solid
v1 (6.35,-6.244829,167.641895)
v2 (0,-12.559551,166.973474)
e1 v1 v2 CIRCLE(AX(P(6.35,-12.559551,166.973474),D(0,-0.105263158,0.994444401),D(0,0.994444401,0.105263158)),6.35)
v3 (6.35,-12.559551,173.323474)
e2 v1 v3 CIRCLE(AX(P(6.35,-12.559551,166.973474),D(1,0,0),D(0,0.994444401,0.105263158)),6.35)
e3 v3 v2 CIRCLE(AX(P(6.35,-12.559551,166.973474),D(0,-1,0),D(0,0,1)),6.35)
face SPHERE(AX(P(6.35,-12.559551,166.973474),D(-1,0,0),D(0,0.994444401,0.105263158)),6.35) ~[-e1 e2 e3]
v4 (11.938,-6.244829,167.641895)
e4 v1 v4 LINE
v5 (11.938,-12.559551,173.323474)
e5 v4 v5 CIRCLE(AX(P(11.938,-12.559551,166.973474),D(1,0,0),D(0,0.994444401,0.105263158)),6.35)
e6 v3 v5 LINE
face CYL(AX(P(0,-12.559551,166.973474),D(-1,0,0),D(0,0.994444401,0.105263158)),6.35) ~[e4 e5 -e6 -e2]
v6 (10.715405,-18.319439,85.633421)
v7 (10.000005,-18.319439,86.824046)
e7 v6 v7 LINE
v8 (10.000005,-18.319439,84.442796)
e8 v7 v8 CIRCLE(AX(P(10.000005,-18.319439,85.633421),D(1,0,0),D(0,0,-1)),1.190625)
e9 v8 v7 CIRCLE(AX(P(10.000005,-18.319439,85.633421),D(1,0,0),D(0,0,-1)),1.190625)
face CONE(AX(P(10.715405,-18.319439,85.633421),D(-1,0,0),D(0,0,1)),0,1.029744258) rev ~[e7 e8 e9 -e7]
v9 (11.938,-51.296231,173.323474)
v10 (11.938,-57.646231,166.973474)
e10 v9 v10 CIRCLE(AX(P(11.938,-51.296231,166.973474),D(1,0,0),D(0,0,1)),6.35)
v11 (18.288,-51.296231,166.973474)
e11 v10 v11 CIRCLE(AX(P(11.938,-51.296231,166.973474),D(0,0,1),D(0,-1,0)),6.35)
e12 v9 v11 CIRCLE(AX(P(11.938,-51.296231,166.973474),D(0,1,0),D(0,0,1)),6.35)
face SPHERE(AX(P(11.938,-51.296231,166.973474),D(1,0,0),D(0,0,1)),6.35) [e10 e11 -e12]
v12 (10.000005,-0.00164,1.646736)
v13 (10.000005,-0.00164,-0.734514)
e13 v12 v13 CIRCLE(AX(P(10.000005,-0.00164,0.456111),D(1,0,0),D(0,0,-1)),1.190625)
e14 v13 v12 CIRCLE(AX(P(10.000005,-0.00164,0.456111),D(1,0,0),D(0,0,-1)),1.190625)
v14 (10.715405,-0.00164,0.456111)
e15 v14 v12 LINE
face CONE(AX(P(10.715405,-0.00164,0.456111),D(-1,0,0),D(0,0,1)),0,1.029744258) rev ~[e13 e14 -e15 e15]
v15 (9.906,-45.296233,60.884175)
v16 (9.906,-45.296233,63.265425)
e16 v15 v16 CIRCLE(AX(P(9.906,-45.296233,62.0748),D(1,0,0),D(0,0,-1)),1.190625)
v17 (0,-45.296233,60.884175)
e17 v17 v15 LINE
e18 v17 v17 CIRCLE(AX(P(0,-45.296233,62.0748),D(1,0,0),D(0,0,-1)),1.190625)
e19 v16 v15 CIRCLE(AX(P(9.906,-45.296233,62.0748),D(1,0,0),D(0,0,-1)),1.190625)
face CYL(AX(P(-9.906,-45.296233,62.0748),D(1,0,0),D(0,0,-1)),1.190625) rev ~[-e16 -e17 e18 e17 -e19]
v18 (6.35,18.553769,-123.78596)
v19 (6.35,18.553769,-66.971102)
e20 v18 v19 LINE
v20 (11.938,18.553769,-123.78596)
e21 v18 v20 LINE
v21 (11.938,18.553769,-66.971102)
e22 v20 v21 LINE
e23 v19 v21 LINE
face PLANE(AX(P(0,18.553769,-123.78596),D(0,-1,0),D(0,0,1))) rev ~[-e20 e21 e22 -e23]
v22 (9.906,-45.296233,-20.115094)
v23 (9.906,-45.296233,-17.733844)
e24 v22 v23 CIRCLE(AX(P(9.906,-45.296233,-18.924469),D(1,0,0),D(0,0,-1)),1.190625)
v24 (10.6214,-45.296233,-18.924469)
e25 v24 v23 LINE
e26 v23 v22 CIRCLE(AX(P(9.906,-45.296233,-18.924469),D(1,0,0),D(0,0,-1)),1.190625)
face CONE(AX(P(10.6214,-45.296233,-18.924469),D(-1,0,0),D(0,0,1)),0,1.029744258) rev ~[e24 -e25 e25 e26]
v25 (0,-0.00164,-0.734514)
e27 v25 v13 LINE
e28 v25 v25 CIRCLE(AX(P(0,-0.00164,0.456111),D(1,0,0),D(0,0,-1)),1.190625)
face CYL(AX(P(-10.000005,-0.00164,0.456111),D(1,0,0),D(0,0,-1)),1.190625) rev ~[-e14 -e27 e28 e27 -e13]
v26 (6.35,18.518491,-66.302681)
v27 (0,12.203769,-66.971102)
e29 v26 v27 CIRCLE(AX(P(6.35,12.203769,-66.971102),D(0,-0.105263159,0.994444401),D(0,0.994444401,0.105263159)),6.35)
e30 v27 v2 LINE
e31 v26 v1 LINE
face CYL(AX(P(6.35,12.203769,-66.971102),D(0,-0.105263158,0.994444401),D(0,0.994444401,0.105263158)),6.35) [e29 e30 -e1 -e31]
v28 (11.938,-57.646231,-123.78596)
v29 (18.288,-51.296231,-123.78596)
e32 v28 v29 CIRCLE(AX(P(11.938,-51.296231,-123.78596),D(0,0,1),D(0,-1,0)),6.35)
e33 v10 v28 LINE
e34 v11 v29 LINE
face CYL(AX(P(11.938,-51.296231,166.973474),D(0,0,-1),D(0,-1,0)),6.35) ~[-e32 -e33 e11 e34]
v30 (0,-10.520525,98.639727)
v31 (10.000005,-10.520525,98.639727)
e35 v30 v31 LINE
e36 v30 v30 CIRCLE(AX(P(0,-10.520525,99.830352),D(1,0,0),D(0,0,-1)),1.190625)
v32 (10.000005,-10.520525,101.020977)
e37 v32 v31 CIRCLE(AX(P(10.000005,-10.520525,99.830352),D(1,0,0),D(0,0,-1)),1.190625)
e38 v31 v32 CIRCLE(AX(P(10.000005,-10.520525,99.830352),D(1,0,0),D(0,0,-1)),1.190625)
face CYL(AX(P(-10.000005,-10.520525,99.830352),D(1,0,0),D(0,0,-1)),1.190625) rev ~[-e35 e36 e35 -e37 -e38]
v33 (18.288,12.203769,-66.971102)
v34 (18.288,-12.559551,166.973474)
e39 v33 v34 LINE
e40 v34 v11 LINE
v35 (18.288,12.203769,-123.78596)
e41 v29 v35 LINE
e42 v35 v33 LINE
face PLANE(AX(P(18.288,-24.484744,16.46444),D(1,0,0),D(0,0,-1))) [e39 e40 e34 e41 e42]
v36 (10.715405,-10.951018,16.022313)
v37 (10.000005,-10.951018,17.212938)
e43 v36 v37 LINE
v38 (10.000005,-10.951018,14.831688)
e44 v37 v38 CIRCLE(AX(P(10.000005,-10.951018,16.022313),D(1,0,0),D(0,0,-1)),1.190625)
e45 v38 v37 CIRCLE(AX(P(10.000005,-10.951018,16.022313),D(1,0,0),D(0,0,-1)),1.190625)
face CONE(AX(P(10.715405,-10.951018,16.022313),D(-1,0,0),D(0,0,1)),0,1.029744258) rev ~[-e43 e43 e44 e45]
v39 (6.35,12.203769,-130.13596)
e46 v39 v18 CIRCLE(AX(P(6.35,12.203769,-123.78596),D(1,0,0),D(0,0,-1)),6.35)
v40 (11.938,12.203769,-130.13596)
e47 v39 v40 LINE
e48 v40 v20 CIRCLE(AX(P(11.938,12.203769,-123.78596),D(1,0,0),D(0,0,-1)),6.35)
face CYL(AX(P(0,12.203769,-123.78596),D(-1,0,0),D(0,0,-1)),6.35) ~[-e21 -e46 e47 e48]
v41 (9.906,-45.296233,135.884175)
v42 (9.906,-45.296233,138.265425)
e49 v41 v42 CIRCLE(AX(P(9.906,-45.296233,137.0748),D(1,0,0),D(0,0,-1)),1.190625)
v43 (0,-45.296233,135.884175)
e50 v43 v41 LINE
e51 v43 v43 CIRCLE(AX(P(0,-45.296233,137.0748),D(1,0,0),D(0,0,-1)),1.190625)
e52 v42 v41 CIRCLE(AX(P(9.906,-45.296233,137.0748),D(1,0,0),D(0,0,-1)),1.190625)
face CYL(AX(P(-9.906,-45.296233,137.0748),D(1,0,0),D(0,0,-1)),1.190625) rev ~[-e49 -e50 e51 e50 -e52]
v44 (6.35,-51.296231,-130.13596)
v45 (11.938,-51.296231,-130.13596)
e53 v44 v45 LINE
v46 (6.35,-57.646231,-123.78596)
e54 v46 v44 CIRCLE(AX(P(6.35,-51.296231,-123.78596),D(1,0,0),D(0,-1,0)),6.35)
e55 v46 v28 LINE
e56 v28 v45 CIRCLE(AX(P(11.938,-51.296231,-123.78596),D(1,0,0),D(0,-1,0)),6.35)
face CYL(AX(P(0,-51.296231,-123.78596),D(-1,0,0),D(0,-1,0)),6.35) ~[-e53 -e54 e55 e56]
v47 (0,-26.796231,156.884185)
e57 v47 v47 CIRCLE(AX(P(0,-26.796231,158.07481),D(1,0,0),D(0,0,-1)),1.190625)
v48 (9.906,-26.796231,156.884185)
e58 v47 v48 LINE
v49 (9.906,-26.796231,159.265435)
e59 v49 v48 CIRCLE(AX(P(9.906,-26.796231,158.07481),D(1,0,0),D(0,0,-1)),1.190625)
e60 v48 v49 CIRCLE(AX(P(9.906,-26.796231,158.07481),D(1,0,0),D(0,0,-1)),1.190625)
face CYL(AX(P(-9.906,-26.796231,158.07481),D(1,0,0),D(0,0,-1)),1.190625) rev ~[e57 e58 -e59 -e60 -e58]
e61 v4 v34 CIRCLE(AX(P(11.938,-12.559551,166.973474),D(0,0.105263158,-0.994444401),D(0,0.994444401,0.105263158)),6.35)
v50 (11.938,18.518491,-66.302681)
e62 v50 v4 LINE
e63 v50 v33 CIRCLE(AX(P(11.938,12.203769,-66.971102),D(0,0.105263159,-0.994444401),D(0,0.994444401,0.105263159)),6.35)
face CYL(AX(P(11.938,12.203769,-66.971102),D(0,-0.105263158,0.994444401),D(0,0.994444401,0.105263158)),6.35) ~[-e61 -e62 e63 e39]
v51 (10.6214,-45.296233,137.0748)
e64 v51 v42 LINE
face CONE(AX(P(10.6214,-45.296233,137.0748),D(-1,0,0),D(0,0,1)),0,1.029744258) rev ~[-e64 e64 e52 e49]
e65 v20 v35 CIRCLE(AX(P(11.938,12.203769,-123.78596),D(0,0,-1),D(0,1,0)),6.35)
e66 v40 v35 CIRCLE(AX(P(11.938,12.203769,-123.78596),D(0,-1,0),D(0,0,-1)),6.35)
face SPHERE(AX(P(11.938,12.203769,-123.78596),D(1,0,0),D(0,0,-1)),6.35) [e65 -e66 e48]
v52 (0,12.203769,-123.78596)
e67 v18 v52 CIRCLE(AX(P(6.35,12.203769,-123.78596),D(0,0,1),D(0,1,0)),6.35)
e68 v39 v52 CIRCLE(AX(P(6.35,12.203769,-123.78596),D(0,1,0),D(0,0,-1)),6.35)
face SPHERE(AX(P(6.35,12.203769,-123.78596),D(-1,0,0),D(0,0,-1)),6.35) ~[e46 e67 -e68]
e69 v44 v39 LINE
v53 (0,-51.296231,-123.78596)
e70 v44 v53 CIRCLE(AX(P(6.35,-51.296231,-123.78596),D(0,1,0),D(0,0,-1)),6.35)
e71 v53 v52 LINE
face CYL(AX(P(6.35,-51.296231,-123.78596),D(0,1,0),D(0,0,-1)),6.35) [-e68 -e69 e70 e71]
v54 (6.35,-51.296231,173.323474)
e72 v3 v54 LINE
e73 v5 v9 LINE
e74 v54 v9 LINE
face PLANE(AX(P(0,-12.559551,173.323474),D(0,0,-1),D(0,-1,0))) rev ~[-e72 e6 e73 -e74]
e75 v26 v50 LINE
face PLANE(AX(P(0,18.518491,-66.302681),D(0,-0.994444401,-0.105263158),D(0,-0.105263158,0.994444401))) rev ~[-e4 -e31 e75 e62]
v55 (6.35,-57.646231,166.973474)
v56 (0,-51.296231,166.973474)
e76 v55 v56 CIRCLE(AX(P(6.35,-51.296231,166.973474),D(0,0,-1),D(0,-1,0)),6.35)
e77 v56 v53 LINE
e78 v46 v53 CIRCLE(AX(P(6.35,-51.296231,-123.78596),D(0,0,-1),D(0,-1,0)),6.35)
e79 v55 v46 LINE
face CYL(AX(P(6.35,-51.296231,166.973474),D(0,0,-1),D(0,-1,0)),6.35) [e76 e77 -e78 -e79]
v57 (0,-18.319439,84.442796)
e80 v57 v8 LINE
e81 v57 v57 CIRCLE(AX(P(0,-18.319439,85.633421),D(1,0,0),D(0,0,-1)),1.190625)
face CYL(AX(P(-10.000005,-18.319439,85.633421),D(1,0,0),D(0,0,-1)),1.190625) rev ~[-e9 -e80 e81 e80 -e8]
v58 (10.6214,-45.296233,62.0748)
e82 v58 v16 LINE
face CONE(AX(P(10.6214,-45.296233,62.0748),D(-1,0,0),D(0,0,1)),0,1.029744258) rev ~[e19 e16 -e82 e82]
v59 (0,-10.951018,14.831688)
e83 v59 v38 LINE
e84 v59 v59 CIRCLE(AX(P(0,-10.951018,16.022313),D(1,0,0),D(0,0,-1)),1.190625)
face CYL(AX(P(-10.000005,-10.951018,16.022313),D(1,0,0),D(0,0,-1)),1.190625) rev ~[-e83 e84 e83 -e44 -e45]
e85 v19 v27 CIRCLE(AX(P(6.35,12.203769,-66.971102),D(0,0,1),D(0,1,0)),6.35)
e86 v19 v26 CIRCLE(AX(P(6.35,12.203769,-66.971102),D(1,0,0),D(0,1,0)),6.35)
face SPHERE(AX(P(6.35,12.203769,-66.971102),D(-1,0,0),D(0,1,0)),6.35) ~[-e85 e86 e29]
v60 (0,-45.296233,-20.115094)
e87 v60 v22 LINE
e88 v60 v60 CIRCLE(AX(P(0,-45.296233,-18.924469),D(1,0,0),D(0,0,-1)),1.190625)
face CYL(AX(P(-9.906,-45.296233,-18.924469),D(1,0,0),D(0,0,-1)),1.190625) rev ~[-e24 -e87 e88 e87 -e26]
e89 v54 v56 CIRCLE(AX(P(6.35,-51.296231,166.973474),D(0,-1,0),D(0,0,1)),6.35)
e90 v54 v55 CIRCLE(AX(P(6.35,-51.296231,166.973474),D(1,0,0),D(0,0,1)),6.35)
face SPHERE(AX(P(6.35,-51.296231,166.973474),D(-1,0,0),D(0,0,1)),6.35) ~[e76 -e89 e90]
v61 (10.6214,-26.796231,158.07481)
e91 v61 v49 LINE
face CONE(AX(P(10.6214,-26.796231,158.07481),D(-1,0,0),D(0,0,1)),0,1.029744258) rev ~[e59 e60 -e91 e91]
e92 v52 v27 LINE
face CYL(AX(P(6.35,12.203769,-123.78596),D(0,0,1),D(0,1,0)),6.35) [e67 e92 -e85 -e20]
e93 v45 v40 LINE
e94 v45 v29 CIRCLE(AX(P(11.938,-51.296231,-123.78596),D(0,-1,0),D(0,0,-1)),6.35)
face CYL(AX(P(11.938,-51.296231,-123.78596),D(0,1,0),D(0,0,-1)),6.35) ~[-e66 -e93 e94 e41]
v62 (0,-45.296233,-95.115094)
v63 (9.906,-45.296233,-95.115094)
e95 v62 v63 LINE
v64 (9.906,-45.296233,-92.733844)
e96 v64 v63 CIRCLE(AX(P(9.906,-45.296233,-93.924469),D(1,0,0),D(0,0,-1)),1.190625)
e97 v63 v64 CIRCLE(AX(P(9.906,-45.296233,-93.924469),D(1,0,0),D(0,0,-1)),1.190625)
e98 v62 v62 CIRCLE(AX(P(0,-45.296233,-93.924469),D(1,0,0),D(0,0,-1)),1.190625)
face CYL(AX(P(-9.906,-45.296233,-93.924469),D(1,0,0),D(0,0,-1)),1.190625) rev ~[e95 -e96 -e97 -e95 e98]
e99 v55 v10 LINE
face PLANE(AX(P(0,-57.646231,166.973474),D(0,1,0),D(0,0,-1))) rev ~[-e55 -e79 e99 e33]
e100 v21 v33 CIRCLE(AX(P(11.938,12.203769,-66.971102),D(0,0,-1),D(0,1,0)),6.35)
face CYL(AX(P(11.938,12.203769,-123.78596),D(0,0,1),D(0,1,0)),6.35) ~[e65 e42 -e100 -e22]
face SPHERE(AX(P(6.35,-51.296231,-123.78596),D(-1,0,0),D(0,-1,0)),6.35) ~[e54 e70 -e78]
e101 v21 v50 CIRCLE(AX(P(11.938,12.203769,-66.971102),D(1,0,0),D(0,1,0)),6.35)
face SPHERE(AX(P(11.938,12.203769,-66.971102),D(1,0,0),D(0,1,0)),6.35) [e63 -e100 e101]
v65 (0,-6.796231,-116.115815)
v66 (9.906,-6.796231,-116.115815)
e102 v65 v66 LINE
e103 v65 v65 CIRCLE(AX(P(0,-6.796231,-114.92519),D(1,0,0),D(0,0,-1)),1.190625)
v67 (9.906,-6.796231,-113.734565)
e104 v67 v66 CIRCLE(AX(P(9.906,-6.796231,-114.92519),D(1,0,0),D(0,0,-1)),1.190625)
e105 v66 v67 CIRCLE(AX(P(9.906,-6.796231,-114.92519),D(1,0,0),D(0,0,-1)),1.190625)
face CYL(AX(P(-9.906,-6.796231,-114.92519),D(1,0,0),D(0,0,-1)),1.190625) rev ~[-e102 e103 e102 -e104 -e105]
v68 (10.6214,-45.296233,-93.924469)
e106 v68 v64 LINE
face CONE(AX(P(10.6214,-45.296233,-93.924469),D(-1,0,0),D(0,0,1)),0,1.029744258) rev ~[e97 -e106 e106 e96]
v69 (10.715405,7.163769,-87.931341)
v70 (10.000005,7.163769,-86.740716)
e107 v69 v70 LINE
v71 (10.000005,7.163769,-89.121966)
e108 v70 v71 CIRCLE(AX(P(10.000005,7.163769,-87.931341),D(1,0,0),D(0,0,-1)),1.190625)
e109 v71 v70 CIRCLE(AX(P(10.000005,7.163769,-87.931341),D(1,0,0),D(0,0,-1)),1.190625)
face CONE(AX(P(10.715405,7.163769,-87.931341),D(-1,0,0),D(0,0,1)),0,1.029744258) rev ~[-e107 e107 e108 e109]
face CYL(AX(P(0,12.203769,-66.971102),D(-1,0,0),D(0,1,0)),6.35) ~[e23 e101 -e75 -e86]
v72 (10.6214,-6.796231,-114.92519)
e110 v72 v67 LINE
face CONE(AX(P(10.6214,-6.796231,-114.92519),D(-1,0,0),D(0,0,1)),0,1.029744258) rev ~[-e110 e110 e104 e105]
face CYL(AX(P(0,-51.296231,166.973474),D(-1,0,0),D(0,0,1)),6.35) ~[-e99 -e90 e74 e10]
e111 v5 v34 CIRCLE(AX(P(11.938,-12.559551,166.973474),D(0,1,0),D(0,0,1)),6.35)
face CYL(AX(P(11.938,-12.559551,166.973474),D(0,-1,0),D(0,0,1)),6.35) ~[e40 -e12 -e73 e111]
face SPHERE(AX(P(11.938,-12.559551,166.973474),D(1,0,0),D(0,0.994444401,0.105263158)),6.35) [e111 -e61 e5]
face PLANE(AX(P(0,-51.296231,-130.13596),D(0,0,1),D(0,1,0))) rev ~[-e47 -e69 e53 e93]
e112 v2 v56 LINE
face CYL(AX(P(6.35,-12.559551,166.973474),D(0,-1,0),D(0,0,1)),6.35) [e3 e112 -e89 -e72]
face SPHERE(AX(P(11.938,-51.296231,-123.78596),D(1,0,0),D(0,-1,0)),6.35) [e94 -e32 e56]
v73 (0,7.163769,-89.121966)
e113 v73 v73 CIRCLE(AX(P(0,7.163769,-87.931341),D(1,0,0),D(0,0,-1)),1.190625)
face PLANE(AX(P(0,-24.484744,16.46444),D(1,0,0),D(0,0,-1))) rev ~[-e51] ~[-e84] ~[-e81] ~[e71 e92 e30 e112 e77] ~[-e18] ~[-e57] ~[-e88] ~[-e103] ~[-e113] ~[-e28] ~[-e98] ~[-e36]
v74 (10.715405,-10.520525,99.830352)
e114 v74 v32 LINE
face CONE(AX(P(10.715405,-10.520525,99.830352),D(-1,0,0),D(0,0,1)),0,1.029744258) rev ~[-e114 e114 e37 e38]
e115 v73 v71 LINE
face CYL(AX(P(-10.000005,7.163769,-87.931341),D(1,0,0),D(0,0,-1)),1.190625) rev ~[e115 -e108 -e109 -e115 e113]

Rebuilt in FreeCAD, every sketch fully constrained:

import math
import FreeCAD as App
import Part
import Sketcher
Q = App.Units.Quantity


def edges_at(feature, points):
    """Names of the edges that pass closest to the given points."""
    edges = feature.Shape.Edges
    near = lambda p: min(range(len(edges)), key=lambda i: edges[i].distToShape(Part.Vertex(*p))[0])
    return sorted({f"Edge{near(p) + 1}" for p in points})

doc = App.newDocument("Part")
body = doc.addObject("PartDesign::Body", "Body")

# Sketch on YZ plane
sketch1 = body.newObject("Sketcher::SketchObject", "Sketch")
sketch1.AttachmentSupport = (doc.getObject("YZ_Plane"), [""])
sketch1.MapMode = "FlatFace"
sketch1.addGeometry([
    Part.LineSegment(App.Vector(-57.6, 167, 0), App.Vector(-57.6, -123.8, 0)),  # 0
    Part.ArcOfCircle(Part.Circle(App.Vector(-51.3, -123.8, 0), App.Vector(0, 0, 1), 6.3), math.radians(180), math.radians(270)),  # 1
    Part.LineSegment(App.Vector(-51.3, -130.1, 0), App.Vector(12.2, -130.1, 0)),  # 2
    Part.ArcOfCircle(Part.Circle(App.Vector(12.2, -123.8, 0), App.Vector(0, 0, 1), 6.4), math.radians(-90), math.radians(0)),  # 3
    Part.LineSegment(App.Vector(18.6, -123.8, 0), App.Vector(18.6, -67, 0)),  # 4
    Part.ArcOfCircle(Part.Circle(App.Vector(12.2, -67, 0), App.Vector(0, 0, 1), 6.3), math.radians(0), math.radians(6.04)),  # 5
    Part.LineSegment(App.Vector(18.5, -66.3, 0), App.Vector(-6.2, 167.6, 0)),  # 6
    Part.ArcOfCircle(Part.Circle(App.Vector(-12.6, 167, 0), App.Vector(0, 0, 1), 6.3), math.radians(6), math.radians(90)),  # 7
    Part.LineSegment(App.Vector(-12.6, 173.3, 0), App.Vector(-51.3, 173.3, 0)),  # 8
    Part.ArcOfCircle(Part.Circle(App.Vector(-51.3, 167, 0), App.Vector(0, 0, 1), 6.3), math.radians(90), math.radians(180)),  # 9
], False)
sketch1.addConstraint([
    Sketcher.Constraint("Tangent", 0, 2, 1, 1),
    Sketcher.Constraint("Tangent", 1, 2, 2, 1),
    Sketcher.Constraint("Tangent", 2, 2, 3, 1),
    Sketcher.Constraint("Tangent", 3, 2, 4, 1),
    Sketcher.Constraint("Tangent", 4, 2, 5, 1),
    Sketcher.Constraint("Tangent", 5, 2, 6, 1),
    Sketcher.Constraint("Tangent", 6, 2, 7, 1),
    Sketcher.Constraint("Tangent", 7, 2, 8, 1),
    Sketcher.Constraint("Tangent", 8, 2, 9, 1),
    Sketcher.Constraint("Tangent", 9, 2, 0, 1),
    Sketcher.Constraint("Vertical", 0),
    Sketcher.Constraint("Horizontal", 2),
    Sketcher.Constraint("Vertical", 4),
    Sketcher.Constraint("Horizontal", 8),
    Sketcher.Constraint("Equal", 1, 3),
    Sketcher.Constraint("Equal", 3, 5),
    Sketcher.Constraint("Equal", 5, 7),
    Sketcher.Constraint("Equal", 7, 9),
    Sketcher.Constraint("Radius", 1, Q("0.25 in")),
    Sketcher.Constraint("DistanceX", 2, 1, 2, 2, Q("2.5 in")),
    Sketcher.Constraint("DistanceX", 8, 2, 8, 1, Q("38.73668 mm")),
    Sketcher.Constraint("DistanceY", 4, 1, 4, 2, Q("56.814859 mm")),
    Sketcher.Constraint("DistanceY", 5, 3, -1, 1, Q("66.971102 mm")),
    Sketcher.Constraint("Distance", 6, Q("235.251539 mm")),
    Sketcher.Constraint("DistanceX", 1, 3, -1, 1, Q("51.296231 mm")),
])
pad1 = body.newObject("PartDesign::Pad", "Pad")
pad1.Profile = sketch1
pad1.Length = Q("0.72 in")
doc.recompute()

fillet = body.newObject("PartDesign::Fillet", "Fillet")
fillet.Base = (pad1, edges_at(pad1, [
    (18.288, -8.312, 171.694),
    (0, -19.546, -130.136),
    (0, -55.786, -128.276),
    (0, -57.646, 21.594),
    (0, -55.786, 171.464),
    (0, -31.928, 173.323),
    (0, -8.312, 171.694),
    (0, 6.137, 50.67),
    (0, 18.545, -66.636),
    (18.288, -31.928, 173.323),
    (18.288, -55.786, 171.464),
    (18.288, -57.646, 21.594),
    (18.288, -55.786, -128.276),
    (18.288, -19.546, -130.136),
    (18.288, 16.694, -128.276),
    (18.288, 18.554, -95.379),
    (18.288, 18.545, -66.636),
    (18.288, 6.137, 50.67),
    (0, 18.554, -95.379),
    (0, 16.694, -128.276),
]))
fillet.Radius = Q("0.25 in")

# Sketch on YZ plane
sketch2 = body.newObject("Sketcher::SketchObject", "Sketch001")
sketch2.AttachmentSupport = (doc.getObject("YZ_Plane"), [""])
sketch2.MapMode = "FlatFace"
sketch2.addGeometry([
    Part.Circle(App.Vector(-11, 16, 0), App.Vector(0, 0, 1), 1.2),
    Part.Circle(App.Vector(-18.3, 85.6, 0), App.Vector(0, 0, 1), 1.2),
], False)
sketch2.addConstraint([
    Sketcher.Constraint("Equal", 0, 1),
    Sketcher.Constraint("Diameter", 0, Q("0.09375 in")),
    Sketcher.Constraint("DistanceX", 0, 3, -1, 1, Q("10.951018 mm")),
    Sketcher.Constraint("DistanceX", 1, 3, -1, 1, Q("18.319439 mm")),
    Sketcher.Constraint("DistanceY", -1, 1, 1, 3, Q("85.633421 mm")),
    Sketcher.Constraint("DistanceY", 0, 3, 1, 3, Q("69.611108 mm")),
])
doc.recompute()
hole = body.newObject("PartDesign::Hole", "Hole")
hole.Profile = sketch2
hole.ThreadType = "None"
hole.Diameter = Q("0.09375 in")
hole.DepthType = "Dimension"
hole.Depth = 10.000005
hole.DrillPoint = "Angled"
hole.DrillPointAngle = 118
hole.Reversed = True

# Sketch on YZ plane
sketch3 = body.newObject("Sketcher::SketchObject", "Sketch002")
sketch3.AttachmentSupport = (doc.getObject("YZ_Plane"), [""])
sketch3.MapMode = "FlatFace"
sketch3.addGeometry([
    Part.Circle(App.Vector(-26.8, 158.1, 0), App.Vector(0, 0, 1), 1.2),
    Part.Circle(App.Vector(-6.8, -114.9, 0), App.Vector(0, 0, 1), 1.2),
], False)
sketch3.addConstraint([
    Sketcher.Constraint("Equal", 0, 1),
    Sketcher.Constraint("Diameter", 0, Q("0.09375 in")),
    Sketcher.Constraint("DistanceX", 0, 3, 1, 3, Q("20 mm")),
    Sketcher.Constraint("DistanceY", 1, 3, 0, 3, Q("273 mm")),
    Sketcher.Constraint("DistanceX", 0, 3, -1, 1, Q("26.796231 mm")),
    Sketcher.Constraint("DistanceY", -1, 1, 0, 3, Q("158.07481 mm")),
])
doc.recompute()
hole2 = body.newObject("PartDesign::Hole", "Hole001")
hole2.Profile = sketch3
hole2.ThreadType = "None"
hole2.Diameter = Q("0.09375 in")
hole2.DepthType = "Dimension"
hole2.Depth = Q("0.39 in")
hole2.DrillPoint = "Angled"
hole2.DrillPointAngle = 118
hole2.Reversed = True

# Sketch on YZ plane
sketch4 = body.newObject("Sketcher::SketchObject", "Sketch003")
sketch4.AttachmentSupport = (doc.getObject("YZ_Plane"), [""])
sketch4.MapMode = "FlatFace"
sketch4.addGeometry([
    Part.Circle(App.Vector(-45.3, -93.9, 0), App.Vector(0, 0, 1), 1.2),
    Part.Circle(App.Vector(-45.3, -18.9, 0), App.Vector(0, 0, 1), 1.2),
    Part.Circle(App.Vector(-45.3, 62.1, 0), App.Vector(0, 0, 1), 1.2),
    Part.Circle(App.Vector(-45.3, 137.1, 0), App.Vector(0, 0, 1), 1.2),
], False)
sketch4.addConstraint([
    Sketcher.Constraint("Equal", 0, 1),
    Sketcher.Constraint("Equal", 1, 2),
    Sketcher.Constraint("Equal", 2, 3),
    Sketcher.Constraint("Vertical", 0, 3, 1, 3),
    Sketcher.Constraint("Vertical", 1, 3, 2, 3),
    Sketcher.Constraint("Vertical", 2, 3, 3, 3),
    Sketcher.Constraint("Diameter", 0, Q("0.09375 in")),
    Sketcher.Constraint("DistanceY", -1, 1, 2, 3, Q("62.0748 mm")),
    Sketcher.Constraint("DistanceY", -1, 1, 3, 3, Q("137.0748 mm")),
    Sketcher.Constraint("DistanceY", 0, 3, 1, 3, Q("75 mm")),
    Sketcher.Constraint("DistanceY", 0, 3, -1, 1, Q("93.924469 mm")),
    Sketcher.Constraint("DistanceX", 0, 3, -1, 1, Q("45.296233 mm")),
])
doc.recompute()
hole3 = body.newObject("PartDesign::Hole", "Hole002")
hole3.Profile = sketch4
hole3.ThreadType = "None"
hole3.Diameter = Q("0.09375 in")
hole3.DepthType = "Dimension"
hole3.Depth = Q("0.39 in")
hole3.DrillPoint = "Angled"
hole3.DrillPointAngle = 118
hole3.Reversed = True

# Sketch on YZ plane
sketch5 = body.newObject("Sketcher::SketchObject", "Sketch004")
sketch5.AttachmentSupport = (doc.getObject("YZ_Plane"), [""])
sketch5.MapMode = "FlatFace"
sketch5.addGeometry([
    Part.Circle(App.Vector(7.2, -87.9, 0), App.Vector(0, 0, 1), 1.2),
    Part.Circle(App.Vector(0, 0.5, 0), App.Vector(0, 0, 1), 1.2),
    Part.Circle(App.Vector(-10.5, 99.8, 0), App.Vector(0, 0, 1), 1.2),
], False)
sketch5.addConstraint([
    Sketcher.Constraint("Equal", 0, 1),
    Sketcher.Constraint("Equal", 1, 2),
    Sketcher.Constraint("Diameter", 0, Q("0.09375 in")),
    Sketcher.Constraint("DistanceX", -1, 1, 0, 3, Q("7.163769 mm")),
    Sketcher.Constraint("DistanceY", 0, 3, -1, 1, Q("87.931341 mm")),
    Sketcher.Constraint("DistanceX", 1, 3, -1, 1, Q("0.00164 mm")),
    Sketcher.Constraint("DistanceY", -1, 1, 1, 3, Q("0.456111 mm")),
    Sketcher.Constraint("DistanceY", -1, 1, 2, 3, Q("99.830352 mm")),
    Sketcher.Constraint("DistanceX", 2, 3, -1, 1, Q("10.520525 mm")),
])
doc.recompute()
hole4 = body.newObject("PartDesign::Hole", "Hole003")
hole4.Profile = sketch5
hole4.ThreadType = "None"
hole4.Diameter = Q("0.09375 in")
hole4.DepthType = "Dimension"
hole4.Depth = 10.000005
hole4.DrillPoint = "Angled"
hole4.DrillPointAngle = 118
hole4.Reversed = True

doc.recompute()
